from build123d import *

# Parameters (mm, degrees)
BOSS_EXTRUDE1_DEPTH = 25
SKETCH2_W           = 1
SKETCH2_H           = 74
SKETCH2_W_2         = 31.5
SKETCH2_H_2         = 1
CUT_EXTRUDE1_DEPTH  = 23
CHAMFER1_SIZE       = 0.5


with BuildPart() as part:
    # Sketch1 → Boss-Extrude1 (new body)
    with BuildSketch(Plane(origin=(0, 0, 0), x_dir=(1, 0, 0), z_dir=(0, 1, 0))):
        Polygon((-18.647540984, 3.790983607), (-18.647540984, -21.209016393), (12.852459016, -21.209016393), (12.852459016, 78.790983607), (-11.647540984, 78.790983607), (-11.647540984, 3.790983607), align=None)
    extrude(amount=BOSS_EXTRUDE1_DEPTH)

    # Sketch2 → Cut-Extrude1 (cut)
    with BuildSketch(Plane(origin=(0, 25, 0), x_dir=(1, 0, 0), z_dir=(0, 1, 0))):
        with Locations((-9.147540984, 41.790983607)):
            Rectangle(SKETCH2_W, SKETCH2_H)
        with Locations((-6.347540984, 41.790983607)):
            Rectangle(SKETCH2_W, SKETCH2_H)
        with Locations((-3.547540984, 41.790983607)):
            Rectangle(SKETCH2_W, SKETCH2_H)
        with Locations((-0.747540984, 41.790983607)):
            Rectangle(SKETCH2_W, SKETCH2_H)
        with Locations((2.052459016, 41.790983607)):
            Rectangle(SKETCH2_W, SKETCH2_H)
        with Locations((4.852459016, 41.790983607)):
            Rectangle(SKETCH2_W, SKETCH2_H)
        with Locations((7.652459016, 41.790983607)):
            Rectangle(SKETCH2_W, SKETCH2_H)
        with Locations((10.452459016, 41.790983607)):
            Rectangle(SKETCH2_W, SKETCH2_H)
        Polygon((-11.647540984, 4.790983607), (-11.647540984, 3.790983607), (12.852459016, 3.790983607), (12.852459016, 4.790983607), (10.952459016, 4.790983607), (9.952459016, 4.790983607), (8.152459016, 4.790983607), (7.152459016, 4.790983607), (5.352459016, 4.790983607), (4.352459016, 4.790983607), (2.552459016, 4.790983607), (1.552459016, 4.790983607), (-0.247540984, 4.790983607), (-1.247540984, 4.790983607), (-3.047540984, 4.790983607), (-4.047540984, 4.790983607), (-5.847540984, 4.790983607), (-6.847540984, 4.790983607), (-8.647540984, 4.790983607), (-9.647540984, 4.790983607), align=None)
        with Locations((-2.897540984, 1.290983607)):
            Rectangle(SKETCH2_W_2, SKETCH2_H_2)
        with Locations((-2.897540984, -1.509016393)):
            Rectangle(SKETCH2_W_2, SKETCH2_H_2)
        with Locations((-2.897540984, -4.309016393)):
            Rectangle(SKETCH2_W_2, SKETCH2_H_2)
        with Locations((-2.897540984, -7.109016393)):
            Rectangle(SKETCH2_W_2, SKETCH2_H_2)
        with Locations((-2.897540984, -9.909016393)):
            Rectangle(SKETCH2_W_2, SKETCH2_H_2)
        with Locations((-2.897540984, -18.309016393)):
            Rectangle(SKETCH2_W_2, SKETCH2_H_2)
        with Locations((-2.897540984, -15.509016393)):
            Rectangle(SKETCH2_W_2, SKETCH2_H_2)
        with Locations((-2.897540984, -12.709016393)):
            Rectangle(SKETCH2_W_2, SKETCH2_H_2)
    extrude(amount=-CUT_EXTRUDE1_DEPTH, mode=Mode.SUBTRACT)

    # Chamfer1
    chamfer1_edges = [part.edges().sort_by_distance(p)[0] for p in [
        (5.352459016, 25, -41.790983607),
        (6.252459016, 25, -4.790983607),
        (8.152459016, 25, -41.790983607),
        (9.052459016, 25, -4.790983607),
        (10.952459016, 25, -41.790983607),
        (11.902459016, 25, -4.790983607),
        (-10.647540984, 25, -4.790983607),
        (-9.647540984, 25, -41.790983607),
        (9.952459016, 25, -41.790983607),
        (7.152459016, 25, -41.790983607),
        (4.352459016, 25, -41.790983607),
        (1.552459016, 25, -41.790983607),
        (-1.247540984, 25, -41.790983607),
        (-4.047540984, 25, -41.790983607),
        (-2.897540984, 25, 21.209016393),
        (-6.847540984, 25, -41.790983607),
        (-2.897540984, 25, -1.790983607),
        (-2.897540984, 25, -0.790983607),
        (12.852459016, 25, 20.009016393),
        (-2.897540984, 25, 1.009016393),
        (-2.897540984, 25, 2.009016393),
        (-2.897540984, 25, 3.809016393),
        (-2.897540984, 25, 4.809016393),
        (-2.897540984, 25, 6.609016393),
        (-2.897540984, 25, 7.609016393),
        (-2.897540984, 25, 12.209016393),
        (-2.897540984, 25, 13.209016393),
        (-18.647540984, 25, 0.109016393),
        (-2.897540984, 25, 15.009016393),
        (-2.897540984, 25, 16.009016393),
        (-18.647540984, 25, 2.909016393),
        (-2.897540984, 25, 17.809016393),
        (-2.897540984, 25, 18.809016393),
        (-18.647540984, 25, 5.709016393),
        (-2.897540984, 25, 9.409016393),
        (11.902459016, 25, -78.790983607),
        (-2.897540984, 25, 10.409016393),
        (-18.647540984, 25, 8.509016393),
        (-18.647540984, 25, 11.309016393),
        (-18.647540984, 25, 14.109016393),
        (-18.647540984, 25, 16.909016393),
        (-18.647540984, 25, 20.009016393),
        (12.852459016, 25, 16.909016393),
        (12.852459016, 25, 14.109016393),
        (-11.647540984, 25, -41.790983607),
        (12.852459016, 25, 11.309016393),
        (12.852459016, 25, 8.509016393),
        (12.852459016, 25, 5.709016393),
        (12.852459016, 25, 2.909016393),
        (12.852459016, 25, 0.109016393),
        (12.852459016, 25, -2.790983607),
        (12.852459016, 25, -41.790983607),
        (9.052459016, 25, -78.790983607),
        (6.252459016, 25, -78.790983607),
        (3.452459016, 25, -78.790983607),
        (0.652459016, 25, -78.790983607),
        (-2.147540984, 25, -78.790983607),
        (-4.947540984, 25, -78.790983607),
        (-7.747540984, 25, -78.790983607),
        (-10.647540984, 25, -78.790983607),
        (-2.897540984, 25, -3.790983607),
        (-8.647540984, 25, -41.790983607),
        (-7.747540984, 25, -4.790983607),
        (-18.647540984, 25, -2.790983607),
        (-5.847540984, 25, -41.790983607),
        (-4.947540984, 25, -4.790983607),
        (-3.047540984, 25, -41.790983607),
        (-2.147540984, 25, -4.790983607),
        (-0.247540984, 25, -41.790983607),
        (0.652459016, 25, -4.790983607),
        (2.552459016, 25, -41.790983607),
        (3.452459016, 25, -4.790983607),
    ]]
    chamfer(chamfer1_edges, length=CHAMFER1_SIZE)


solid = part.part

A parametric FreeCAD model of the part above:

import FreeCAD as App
import Part
import Sketcher


def edges_at(feature, points):
    """Names of the edges that pass closest to the given points."""
    edges = feature.Shape.Edges
    near = lambda p: min(range(len(edges)), key=lambda i: edges[i].distToShape(Part.Vertex(*p))[0])
    return sorted({f"Edge{near(p) + 1}" for p in points})

doc = App.newDocument("Part")
body = doc.addObject("PartDesign::Body", "Body")

# Sketch on XZ plane
sketch1 = body.newObject("Sketcher::SketchObject", "Sketch")
sketch1.AttachmentSupport = (doc.getObject("XZ_Plane"), [""])
sketch1.MapMode = "FlatFace"
sketch1.addGeometry(Part.LineSegment(App.Vector(-18.647541, -3.790984, 0), App.Vector(-18.647541, 21.209016, 0)), False)
sketch1.addGeometry(Part.LineSegment(App.Vector(-18.647541, 21.209016, 0), App.Vector(12.852459, 21.209016, 0)), False)
sketch1.addGeometry(Part.LineSegment(App.Vector(12.852459, 21.209016, 0), App.Vector(12.852459, -78.790984, 0)), False)
sketch1.addGeometry(Part.LineSegment(App.Vector(12.852459, -78.790984, 0), App.Vector(-11.647541, -78.790984, 0)), False)
sketch1.addGeometry(Part.LineSegment(App.Vector(-11.647541, -78.790984, 0), App.Vector(-11.647541, -3.790984, 0)), False)
sketch1.addGeometry(Part.LineSegment(App.Vector(-11.647541, -3.790984, 0), App.Vector(-18.647541, -3.790984, 0)), False)
sketch1.addConstraint(Sketcher.Constraint("Coincident", 0, 2, 1, 1))
sketch1.addConstraint(Sketcher.Constraint("Coincident", 1, 2, 2, 1))
sketch1.addConstraint(Sketcher.Constraint("Coincident", 2, 2, 3, 1))
sketch1.addConstraint(Sketcher.Constraint("Coincident", 3, 2, 4, 1))
sketch1.addConstraint(Sketcher.Constraint("Coincident", 4, 2, 5, 1))
sketch1.addConstraint(Sketcher.Constraint("Coincident", 5, 2, 0, 1))
sketch1.addConstraint(Sketcher.Constraint("Vertical", 0))
sketch1.addConstraint(Sketcher.Constraint("Horizontal", 1))
sketch1.addConstraint(Sketcher.Constraint("Vertical", 2))
sketch1.addConstraint(Sketcher.Constraint("Horizontal", 3))
sketch1.addConstraint(Sketcher.Constraint("Vertical", 4))
sketch1.addConstraint(Sketcher.Constraint("Horizontal", 5))
sketch1.addConstraint(Sketcher.Constraint("DistanceX", 5, 2, 5, 1, 7.0))
sketch1.addConstraint(Sketcher.Constraint("DistanceY", 0, 1, 0, 2, 25.0))
sketch1.addConstraint(Sketcher.Constraint("DistanceY", 2, 2, 2, 1, 100.0))
sketch1.addConstraint(Sketcher.Constraint("DistanceX", 1, 1, 1, 2, 31.5))
sketch1.addConstraint(Sketcher.Constraint("DistanceX", 0, 2, -1, 1, 18.647541))
sketch1.addConstraint(Sketcher.Constraint("DistanceY", -1, 1, 0, 2, 21.209016))
pad1 = body.newObject("PartDesign::Pad", "Pad")
pad1.Profile = sketch1
pad1.Length = 25
pad1.Reversed = True

# Sketch on XZ plane
sketch2 = body.newObject("Sketcher::SketchObject", "Sketch001")
sketch2.AttachmentSupport = (doc.getObject("XZ_Plane"), [""])
sketch2.MapMode = "FlatFace"
sketch2.AttachmentOffset = App.Placement(App.Vector(0, 0, -25), App.Rotation())
sketch2.addGeometry(Part.LineSegment(App.Vector(-9.647541, -78.790984, 0), App.Vector(-9.647541, -4.790984, 0)), False)
sketch2.addGeometry(Part.LineSegment(App.Vector(-9.647541, -4.790984, 0), App.Vector(-11.647541, -4.790984, 0)), False)
sketch2.addGeometry(Part.LineSegment(App.Vector(-11.647541, -4.790984, 0), App.Vector(-11.647541, -3.790984, 0)), False)
sketch2.addGeometry(Part.LineSegment(App.Vector(-11.647541, -3.790984, 0), App.Vector(12.852459, -3.790984, 0)), False)
sketch2.addGeometry(Part.LineSegment(App.Vector(12.852459, -3.790984, 0), App.Vector(12.852459, -4.790984, 0)), False)
sketch2.addGeometry(Part.LineSegment(App.Vector(12.852459, -4.790984, 0), App.Vector(10.952459, -4.790984, 0)), False)
sketch2.addGeometry(Part.LineSegment(App.Vector(10.952459, -4.790984, 0), App.Vector(10.952459, -78.790984, 0)), False)
sketch2.addGeometry(Part.LineSegment(App.Vector(10.952459, -78.790984, 0), App.Vector(9.952459, -78.790984, 0)), False)
sketch2.addGeometry(Part.LineSegment(App.Vector(9.952459, -78.790984, 0), App.Vector(9.952459, -4.790984, 0)), False)
sketch2.addGeometry(Part.LineSegment(App.Vector(9.952459, -4.790984, 0), App.Vector(8.152459, -4.790984, 0)), False)
sketch2.addGeometry(Part.LineSegment(App.Vector(8.152459, -4.790984, 0), App.Vector(8.152459, -78.790984, 0)), False)
sketch2.addGeometry(Part.LineSegment(App.Vector(8.152459, -78.790984, 0), App.Vector(7.152459, -78.790984, 0)), False)
sketch2.addGeometry(Part.LineSegment(App.Vector(7.152459, -78.790984, 0), App.Vector(7.152459, -4.790984, 0)), False)
sketch2.addGeometry(Part.LineSegment(App.Vector(7.152459, -4.790984, 0), App.Vector(5.352459, -4.790984, 0)), False)
sketch2.addGeometry(Part.LineSegment(App.Vector(5.352459, -4.790984, 0), App.Vector(5.352459, -78.790984, 0)), False)
sketch2.addGeometry(Part.LineSegment(App.Vector(5.352459, -78.790984, 0), App.Vector(4.352459, -78.790984, 0)), False)
sketch2.addGeometry(Part.LineSegment(App.Vector(4.352459, -78.790984, 0), App.Vector(4.352459, -4.790984, 0)), False)
sketch2.addGeometry(Part.LineSegment(App.Vector(4.352459, -4.790984, 0), App.Vector(2.552459, -4.790984, 0)), False)
sketch2.addGeometry(Part.LineSegment(App.Vector(2.552459, -4.790984, 0), App.Vector(2.552459, -78.790984, 0)), False)
sketch2.addGeometry(Part.LineSegment(App.Vector(2.552459, -78.790984, 0), App.Vector(1.552459, -78.790984, 0)), False)
sketch2.addGeometry(Part.LineSegment(App.Vector(1.552459, -78.790984, 0), App.Vector(1.552459, -4.790984, 0)), False)
sketch2.addGeometry(Part.LineSegment(App.Vector(1.552459, -4.790984, 0), App.Vector(-0.247541, -4.790984, 0)), False)
sketch2.addGeometry(Part.LineSegment(App.Vector(-0.247541, -4.790984, 0), App.Vector(-0.247541, -78.790984, 0)), False)
sketch2.addGeometry(Part.LineSegment(App.Vector(-0.247541, -78.790984, 0), App.Vector(-1.247541, -78.790984, 0)), False)
sketch2.addGeometry(Part.LineSegment(App.Vector(-1.247541, -78.790984, 0), App.Vector(-1.247541, -4.790984, 0)), False)
sketch2.addGeometry(Part.LineSegment(App.Vector(-1.247541, -4.790984, 0), App.Vector(-3.047541, -4.790984, 0)), False)
sketch2.addGeometry(Part.LineSegment(App.Vector(-3.047541, -4.790984, 0), App.Vector(-3.047541, -78.790984, 0)), False)
sketch2.addGeometry(Part.LineSegment(App.Vector(-3.047541, -78.790984, 0), App.Vector(-4.047541, -78.790984, 0)), False)
sketch2.addGeometry(Part.LineSegment(App.Vector(-4.047541, -78.790984, 0), App.Vector(-4.047541, -4.790984, 0)), False)
sketch2.addGeometry(Part.LineSegment(App.Vector(-4.047541, -4.790984, 0), App.Vector(-5.847541, -4.790984, 0)), False)
sketch2.addGeometry(Part.LineSegment(App.Vector(-5.847541, -4.790984, 0), App.Vector(-5.847541, -78.790984, 0)), False)
sketch2.addGeometry(Part.LineSegment(App.Vector(-5.847541, -78.790984, 0), App.Vector(-6.847541, -78.790984, 0)), False)
sketch2.addGeometry(Part.LineSegment(App.Vector(-6.847541, -78.790984, 0), App.Vector(-6.847541, -4.790984, 0)), False)
sketch2.addGeometry(Part.LineSegment(App.Vector(-6.847541, -4.790984, 0), App.Vector(-8.647541, -4.790984, 0)), False)
sketch2.addGeometry(Part.LineSegment(App.Vector(-8.647541, -4.790984, 0), App.Vector(-8.647541, -78.790984, 0)), False)
sketch2.addGeometry(Part.LineSegment(App.Vector(-8.647541, -78.790984, 0), App.Vector(-9.647541, -78.790984, 0)), False)
sketch2.addGeometry(Part.LineSegment(App.Vector(-18.647541, -1.790984, 0), App.Vector(-18.647541, -0.790984, 0)), False)
sketch2.addGeometry(Part.LineSegment(App.Vector(-18.647541, -0.790984, 0), App.Vector(12.852459, -0.790984, 0)), False)
sketch2.addGeometry(Part.LineSegment(App.Vector(12.852459, -0.790984, 0), App.Vector(12.852459, -1.790984, 0)), False)
sketch2.addGeometry(Part.LineSegment(App.Vector(12.852459, -1.790984, 0), App.Vector(-18.647541, -1.790984, 0)), False)
sketch2.addGeometry(Part.LineSegment(App.Vector(-18.647541, 1.009016, 0), App.Vector(-18.647541, 2.009016, 0)), False)
sketch2.addGeometry(Part.LineSegment(App.Vector(-18.647541, 2.009016, 0), App.Vector(12.852459, 2.009016, 0)), False)
sketch2.addGeometry(Part.LineSegment(App.Vector(12.852459, 2.009016, 0), App.Vector(12.852459, 1.009016, 0)), False)
sketch2.addGeometry(Part.LineSegment(App.Vector(12.852459, 1.009016, 0), App.Vector(-18.647541, 1.009016, 0)), False)
sketch2.addGeometry(Part.LineSegment(App.Vector(-18.647541, 3.809016, 0), App.Vector(-18.647541, 4.809016, 0)), False)
sketch2.addGeometry(Part.LineSegment(App.Vector(-18.647541, 4.809016, 0), App.Vector(12.852459, 4.809016, 0)), False)
sketch2.addGeometry(Part.LineSegment(App.Vector(12.852459, 4.809016, 0), App.Vector(12.852459, 3.809016, 0)), False)
sketch2.addGeometry(Part.LineSegment(App.Vector(12.852459, 3.809016, 0), App.Vector(-18.647541, 3.809016, 0)), False)
sketch2.addGeometry(Part.LineSegment(App.Vector(-18.647541, 6.609016, 0), App.Vector(-18.647541, 7.609016, 0)), False)
sketch2.addGeometry(Part.LineSegment(App.Vector(-18.647541, 7.609016, 0), App.Vector(12.852459, 7.609016, 0)), False)
sketch2.addGeometry(Part.LineSegment(App.Vector(12.852459, 7.609016, 0), App.Vector(12.852459, 6.609016, 0)), False)
sketch2.addGeometry(Part.LineSegment(App.Vector(12.852459, 6.609016, 0), App.Vector(-18.647541, 6.609016, 0)), False)
sketch2.addGeometry(Part.LineSegment(App.Vector(-18.647541, 9.409016, 0), App.Vector(-18.647541, 10.409016, 0)), False)
sketch2.addGeometry(Part.LineSegment(App.Vector(-18.647541, 10.409016, 0), App.Vector(12.852459, 10.409016, 0)), False)
sketch2.addGeometry(Part.LineSegment(App.Vector(12.852459, 10.409016, 0), App.Vector(12.852459, 9.409016, 0)), False)
sketch2.addGeometry(Part.LineSegment(App.Vector(12.852459, 9.409016, 0), App.Vector(-18.647541, 9.409016, 0)), False)
sketch2.addGeometry(Part.LineSegment(App.Vector(-18.647541, 17.809016, 0), App.Vector(-18.647541, 18.809016, 0)), False)
sketch2.addGeometry(Part.LineSegment(App.Vector(-18.647541, 18.809016, 0), App.Vector(12.852459, 18.809016, 0)), False)
sketch2.addGeometry(Part.LineSegment(App.Vector(12.852459, 18.809016, 0), App.Vector(12.852459, 17.809016, 0)), False)
sketch2.addGeometry(Part.LineSegment(App.Vector(12.852459, 17.809016, 0), App.Vector(-18.647541, 17.809016, 0)), False)
sketch2.addGeometry(Part.LineSegment(App.Vector(-18.647541, 15.009016, 0), App.Vector(-18.647541, 16.009016, 0)), False)
sketch2.addGeometry(Part.LineSegment(App.Vector(-18.647541, 16.009016, 0), App.Vector(12.852459, 16.009016, 0)), False)
sketch2.addGeometry(Part.LineSegment(App.Vector(12.852459, 16.009016, 0), App.Vector(12.852459, 15.009016, 0)), False)
sketch2.addGeometry(Part.LineSegment(App.Vector(12.852459, 15.009016, 0), App.Vector(-18.647541, 15.009016, 0)), False)
sketch2.addGeometry(Part.LineSegment(App.Vector(-18.647541, 12.209016, 0), App.Vector(-18.647541, 13.209016, 0)), False)
sketch2.addGeometry(Part.LineSegment(App.Vector(-18.647541, 13.209016, 0), App.Vector(12.852459, 13.209016, 0)), False)
sketch2.addGeometry(Part.LineSegment(App.Vector(12.852459, 13.209016, 0), App.Vector(12.852459, 12.209016, 0)), False)
sketch2.addGeometry(Part.LineSegment(App.Vector(12.852459, 12.209016, 0), App.Vector(-18.647541, 12.209016, 0)), False)
sketch2.addConstraint(Sketcher.Constraint("Coincident", 0, 2, 1, 1))
sketch2.addConstraint(Sketcher.Constraint("Coincident", 1, 2, 2, 1))
sketch2.addConstraint(Sketcher.Constraint("Coincident", 2, 2, 3, 1))
sketch2.addConstraint(Sketcher.Constraint("Coincident", 3, 2, 4, 1))
sketch2.addConstraint(Sketcher.Constraint("Coincident", 4, 2, 5, 1))
sketch2.addConstraint(Sketcher.Constraint("Coincident", 5, 2, 6, 1))
sketch2.addConstraint(Sketcher.Constraint("Coincident", 6, 2, 7, 1))
sketch2.addConstraint(Sketcher.Constraint("Coincident", 7, 2, 8, 1))
sketch2.addConstraint(Sketcher.Constraint("Coincident", 8, 2, 9, 1))
sketch2.addConstraint(Sketcher.Constraint("Coincident", 9, 2, 10, 1))
sketch2.addConstraint(Sketcher.Constraint("Coincident", 10, 2, 11, 1))
sketch2.addConstraint(Sketcher.Constraint("Coincident", 11, 2, 12, 1))
sketch2.addConstraint(Sketcher.Constraint("Coincident", 12, 2, 13, 1))
sketch2.addConstraint(Sketcher.Constraint("Coincident", 13, 2, 14, 1))
sketch2.addConstraint(Sketcher.Constraint("Coincident", 14, 2, 15, 1))
sketch2.addConstraint(Sketcher.Constraint("Coincident", 15, 2, 16, 1))
sketch2.addConstraint(Sketcher.Constraint("Coincident", 16, 2, 17, 1))
sketch2.addConstraint(Sketcher.Constraint("Coincident", 17, 2, 18, 1))
sketch2.addConstraint(Sketcher.Constraint("Coincident", 18, 2, 19, 1))
sketch2.addConstraint(Sketcher.Constraint("Coincident", 19, 2, 20, 1))
sketch2.addConstraint(Sketcher.Constraint("Coincident", 20, 2, 21, 1))
sketch2.addConstraint(Sketcher.Constraint("Coincident", 21, 2, 22, 1))
sketch2.addConstraint(Sketcher.Constraint("Coincident", 22, 2, 23, 1))
sketch2.addConstraint(Sketcher.Constraint("Coincident", 23, 2, 24, 1))
sketch2.addConstraint(Sketcher.Constraint("Coincident", 24, 2, 25, 1))
sketch2.addConstraint(Sketcher.Constraint("Coincident", 25, 2, 26, 1))
sketch2.addConstraint(Sketcher.Constraint("Coincident", 26, 2, 27, 1))
sketch2.addConstraint(Sketcher.Constraint("Coincident", 27, 2, 28, 1))
sketch2.addConstraint(Sketcher.Constraint("Coincident", 28, 2, 29, 1))
sketch2.addConstraint(Sketcher.Constraint("Coincident", 29, 2, 30, 1))
sketch2.addConstraint(Sketcher.Constraint("Coincident", 30, 2, 31, 1))
sketch2.addConstraint(Sketcher.Constraint("Coincident", 31, 2, 32, 1))
sketch2.addConstraint(Sketcher.Constraint("Coincident", 32, 2, 33, 1))
sketch2.addConstraint(Sketcher.Constraint("Coincident", 33, 2, 34, 1))
sketch2.addConstraint(Sketcher.Constraint("Coincident", 34, 2, 35, 1))
sketch2.addConstraint(Sketcher.Constraint("Coincident", 35, 2, 0, 1))
sketch2.addConstraint(Sketcher.Constraint("Coincident", 36, 2, 37, 1))
sketch2.addConstraint(Sketcher.Constraint("Coincident", 37, 2, 38, 1))
sketch2.addConstraint(Sketcher.Constraint("Coincident", 38, 2, 39, 1))
sketch2.addConstraint(Sketcher.Constraint("Coincident", 39, 2, 36, 1))
sketch2.addConstraint(Sketcher.Constraint("Coincident", 40, 2, 41, 1))
sketch2.addConstraint(Sketcher.Constraint("Coincident", 41, 2, 42, 1))
sketch2.addConstraint(Sketcher.Constraint("Coincident", 42, 2, 43, 1))
sketch2.addConstraint(Sketcher.Constraint("Coincident", 43, 2, 40, 1))
sketch2.addConstraint(Sketcher.Constraint("Coincident", 44, 2, 45, 1))
sketch2.addConstraint(Sketcher.Constraint("Coincident", 45, 2, 46, 1))
sketch2.addConstraint(Sketcher.Constraint("Coincident", 46, 2, 47, 1))
sketch2.addConstraint(Sketcher.Constraint("Coincident", 47, 2, 44, 1))
sketch2.addConstraint(Sketcher.Constraint("Coincident", 48, 2, 49, 1))
sketch2.addConstraint(Sketcher.Constraint("Coincident", 49, 2, 50, 1))
sketch2.addConstraint(Sketcher.Constraint("Coincident", 50, 2, 51, 1))
sketch2.addConstraint(Sketcher.Constraint("Coincident", 51, 2, 48, 1))
sketch2.addConstraint(Sketcher.Constraint("Coincident", 52, 2, 53, 1))
sketch2.addConstraint(Sketcher.Constraint("Coincident", 53, 2, 54, 1))
sketch2.addConstraint(Sketcher.Constraint("Coincident", 54, 2, 55, 1))
sketch2.addConstraint(Sketcher.Constraint("Coincident", 55, 2, 52, 1))
sketch2.addConstraint(Sketcher.Constraint("Coincident", 56, 2, 57, 1))
sketch2.addConstraint(Sketcher.Constraint("Coincident", 57, 2, 58, 1))
sketch2.addConstraint(Sketcher.Constraint("Coincident", 58, 2, 59, 1))
sketch2.addConstraint(Sketcher.Constraint("Coincident", 59, 2, 56, 1))
sketch2.addConstraint(Sketcher.Constraint("Coincident", 60, 2, 61, 1))
sketch2.addConstraint(Sketcher.Constraint("Coincident", 61, 2, 62, 1))
sketch2.addConstraint(Sketcher.Constraint("Coincident", 62, 2, 63, 1))
sketch2.addConstraint(Sketcher.Constraint("Coincident", 63, 2, 60, 1))
sketch2.addConstraint(Sketcher.Constraint("Coincident", 64, 2, 65, 1))
sketch2.addConstraint(Sketcher.Constraint("Coincident", 65, 2, 66, 1))
sketch2.addConstraint(Sketcher.Constraint("Coincident", 66, 2, 67, 1))
sketch2.addConstraint(Sketcher.Constraint("Coincident", 67, 2, 64, 1))
sketch2.addConstraint(Sketcher.Constraint("Vertical", 0))
sketch2.addConstraint(Sketcher.Constraint("Horizontal", 1))
sketch2.addConstraint(Sketcher.Constraint("Vertical", 2))
sketch2.addConstraint(Sketcher.Constraint("Horizontal", 3))
sketch2.addConstraint(Sketcher.Constraint("Vertical", 4))
sketch2.addConstraint(Sketcher.Constraint("Horizontal", 5))
sketch2.addConstraint(Sketcher.Constraint("Vertical", 6))
sketch2.addConstraint(Sketcher.Constraint("Horizontal", 7))
sketch2.addConstraint(Sketcher.Constraint("Vertical", 8))
sketch2.addConstraint(Sketcher.Constraint("Horizontal", 9))
sketch2.addConstraint(Sketcher.Constraint("Vertical", 10))
sketch2.addConstraint(Sketcher.Constraint("Horizontal", 11))
sketch2.addConstraint(Sketcher.Constraint("Vertical", 12))
sketch2.addConstraint(Sketcher.Constraint("Horizontal", 13))
sketch2.addConstraint(Sketcher.Constraint("Vertical", 14))
sketch2.addConstraint(Sketcher.Constraint("Horizontal", 15))
sketch2.addConstraint(Sketcher.Constraint("Vertical", 16))
sketch2.addConstraint(Sketcher.Constraint("Horizontal", 17))
sketch2.addConstraint(Sketcher.Constraint("Vertical", 18))
sketch2.addConstraint(Sketcher.Constraint("Horizontal", 19))
sketch2.addConstraint(Sketcher.Constraint("Vertical", 20))
sketch2.addConstraint(Sketcher.Constraint("Horizontal", 21))
sketch2.addConstraint(Sketcher.Constraint("Vertical", 22))
sketch2.addConstraint(Sketcher.Constraint("Horizontal", 23))
sketch2.addConstraint(Sketcher.Constraint("Vertical", 24))
sketch2.addConstraint(Sketcher.Constraint("Horizontal", 25))
sketch2.addConstraint(Sketcher.Constraint("Vertical", 26))
sketch2.addConstraint(Sketcher.Constraint("Horizontal", 27))
sketch2.addConstraint(Sketcher.Constraint("Vertical", 28))
sketch2.addConstraint(Sketcher.Constraint("Horizontal", 29))
sketch2.addConstraint(Sketcher.Constraint("Vertical", 30))
sketch2.addConstraint(Sketcher.Constraint("Horizontal", 31))
sketch2.addConstraint(Sketcher.Constraint("Vertical", 32))
sketch2.addConstraint(Sketcher.Constraint("Horizontal", 33))
sketch2.addConstraint(Sketcher.Constraint("Vertical", 34))
sketch2.addConstraint(Sketcher.Constraint("Horizontal", 35))
sketch2.addConstraint(Sketcher.Constraint("Vertical", 36))
sketch2.addConstraint(Sketcher.Constraint("Horizontal", 37))
sketch2.addConstraint(Sketcher.Constraint("Vertical", 38))
sketch2.addConstraint(Sketcher.Constraint("Horizontal", 39))
sketch2.addConstraint(Sketcher.Constraint("Vertical", 40))
sketch2.addConstraint(Sketcher.Constraint("Horizontal", 41))
sketch2.addConstraint(Sketcher.Constraint("Vertical", 42))
sketch2.addConstraint(Sketcher.Constraint("Horizontal", 43))
sketch2.addConstraint(Sketcher.Constraint("Vertical", 44))
sketch2.addConstraint(Sketcher.Constraint("Horizontal", 45))
sketch2.addConstraint(Sketcher.Constraint("Vertical", 46))
sketch2.addConstraint(Sketcher.Constraint("Horizontal", 47))
sketch2.addConstraint(Sketcher.Constraint("Vertical", 48))
sketch2.addConstraint(Sketcher.Constraint("Horizontal", 49))
sketch2.addConstraint(Sketcher.Constraint("Vertical", 50))
sketch2.addConstraint(Sketcher.Constraint("Horizontal", 51))
sketch2.addConstraint(Sketcher.Constraint("Vertical", 52))
sketch2.addConstraint(Sketcher.Constraint("Horizontal", 53))
sketch2.addConstraint(Sketcher.Constraint("Vertical", 54))
sketch2.addConstraint(Sketcher.Constraint("Horizontal", 55))
sketch2.addConstraint(Sketcher.Constraint("Vertical", 56))
sketch2.addConstraint(Sketcher.Constraint("Horizontal", 57))
sketch2.addConstraint(Sketcher.Constraint("Vertical", 58))
sketch2.addConstraint(Sketcher.Constraint("Horizontal", 59))
sketch2.addConstraint(Sketcher.Constraint("Vertical", 60))
sketch2.addConstraint(Sketcher.Constraint("Horizontal", 61))
sketch2.addConstraint(Sketcher.Constraint("Vertical", 62))
sketch2.addConstraint(Sketcher.Constraint("Horizontal", 63))
sketch2.addConstraint(Sketcher.Constraint("Vertical", 64))
sketch2.addConstraint(Sketcher.Constraint("Horizontal", 65))
sketch2.addConstraint(Sketcher.Constraint("Vertical", 66))
sketch2.addConstraint(Sketcher.Constraint("Horizontal", 67))
sketch2.addConstraint(Sketcher.Constraint("Horizontal", 1, 2, 4, 2))
sketch2.addConstraint(Sketcher.Constraint("Horizontal", 5, 2, 8, 2))
sketch2.addConstraint(Sketcher.Constraint("Horizontal", 7, 2, 10, 2))
sketch2.addConstraint(Sketcher.Constraint("Horizontal", 9, 2, 12, 2))
sketch2.addConstraint(Sketcher.Constraint("Horizontal", 11, 2, 14, 2))
sketch2.addConstraint(Sketcher.Constraint("Horizontal", 13, 2, 16, 2))
sketch2.addConstraint(Sketcher.Constraint("Horizontal", 15, 2, 18, 2))
sketch2.addConstraint(Sketcher.Constraint("Horizontal", 17, 2, 20, 2))
sketch2.addConstraint(Sketcher.Constraint("Horizontal", 19, 2, 22, 2))
sketch2.addConstraint(Sketcher.Constraint("Horizontal", 21, 2, 24, 2))
sketch2.addConstraint(Sketcher.Constraint("Horizontal", 23, 2, 26, 2))
sketch2.addConstraint(Sketcher.Constraint("Horizontal", 25, 2, 28, 2))
sketch2.addConstraint(Sketcher.Constraint("Horizontal", 27, 2, 30, 2))
sketch2.addConstraint(Sketcher.Constraint("Horizontal", 29, 2, 32, 2))
sketch2.addConstraint(Sketcher.Constraint("Horizontal", 31, 2, 34, 2))
sketch2.addConstraint(Sketcher.Constraint("Vertical", 4, 2, 37, 2))
sketch2.addConstraint(Sketcher.Constraint("Vertical", 39, 2, 40, 2))
sketch2.addConstraint(Sketcher.Constraint("Vertical", 38, 2, 41, 2))
sketch2.addConstraint(Sketcher.Constraint("Vertical", 43, 2, 44, 2))
sketch2.addConstraint(Sketcher.Constraint("Vertical", 42, 2, 45, 2))
sketch2.addConstraint(Sketcher.Constraint("Vertical", 47, 2, 48, 2))
sketch2.addConstraint(Sketcher.Constraint("Vertical", 46, 2, 49, 2))
sketch2.addConstraint(Sketcher.Constraint("Vertical", 51, 2, 52, 2))
sketch2.addConstraint(Sketcher.Constraint("Vertical", 50, 2, 53, 2))
sketch2.addConstraint(Sketcher.Constraint("Vertical", 55, 2, 56, 2))
sketch2.addConstraint(Sketcher.Constraint("Vertical", 54, 2, 57, 2))
sketch2.addConstraint(Sketcher.Constraint("Vertical", 59, 2, 60, 2))
sketch2.addConstraint(Sketcher.Constraint("Vertical", 58, 2, 61, 2))
sketch2.addConstraint(Sketcher.Constraint("Vertical", 63, 2, 64, 2))
sketch2.addConstraint(Sketcher.Constraint("Vertical", 62, 2, 65, 2))
sketch2.addConstraint(Sketcher.Constraint("Equal", 7, 11))
sketch2.addConstraint(Sketcher.Constraint("Equal", 9, 13))
sketch2.addConstraint(Sketcher.Constraint("Equal", 11, 15))
sketch2.addConstraint(Sketcher.Constraint("Equal", 13, 17))
sketch2.addConstraint(Sketcher.Constraint("Equal", 15, 19))
sketch2.addConstraint(Sketcher.Constraint("Equal", 17, 21))
sketch2.addConstraint(Sketcher.Constraint("Equal", 19, 23))
sketch2.addConstraint(Sketcher.Constraint("Equal", 21, 25))
sketch2.addConstraint(Sketcher.Constraint("Equal", 23, 27))
sketch2.addConstraint(Sketcher.Constraint("Equal", 25, 29))
sketch2.addConstraint(Sketcher.Constraint("Equal", 27, 31))
sketch2.addConstraint(Sketcher.Constraint("Equal", 29, 33))
sketch2.addConstraint(Sketcher.Constraint("Equal", 31, 35))
sketch2.addConstraint(Sketcher.Constraint("Equal", 35, 2))
sketch2.addConstraint(Sketcher.Constraint("Equal", 4, 36))
sketch2.addConstraint(Sketcher.Constraint("Equal", 38, 40))
sketch2.addConstraint(Sketcher.Constraint("Equal", 42, 44))
sketch2.addConstraint(Sketcher.Constraint("Equal", 46, 48))
sketch2.addConstraint(Sketcher.Constraint("Equal", 50, 52))
sketch2.addConstraint(Sketcher.Constraint("Equal", 54, 56))
sketch2.addConstraint(Sketcher.Constraint("Equal", 58, 60))
sketch2.addConstraint(Sketcher.Constraint("Equal", 62, 64))
sketch2.addConstraint(Sketcher.Constraint("DistanceX", 1, 2, 1, 1, 2.0))
sketch2.addConstraint(Sketcher.Constraint("DistanceX", 7, 2, 7, 1, 1.0))
sketch2.addConstraint(Sketcher.Constraint("DistanceY", 0, 1, 0, 2, 74.0))
sketch2.addConstraint(Sketcher.Constraint("DistanceX", 3, 1, 3, 2, 24.5))
sketch2.addConstraint(Sketcher.Constraint("DistanceX", 5, 2, 5, 1, 1.9))
sketch2.addConstraint(Sketcher.Constraint("DistanceX", 37, 1, 37, 2, 31.5))
sketch2.addConstraint(Sketcher.Constraint("DistanceX", 0, 2, -1, 1, 9.647541))
sketch2.addConstraint(Sketcher.Constraint("DistanceY", 0, 2, -1, 1, 4.790984))
sketch2.addConstraint(Sketcher.Constraint("DistanceY", 36, 2, -1, 1, 0.790984))
sketch2.addConstraint(Sketcher.Constraint("DistanceY", -1, 1, 40, 2, 2.009016))
sketch2.addConstraint(Sketcher.Constraint("DistanceY", -1, 1, 44, 2, 4.809016))
sketch2.addConstraint(Sketcher.Constraint("DistanceY", -1, 1, 48, 2, 7.609016))
sketch2.addConstraint(Sketcher.Constraint("DistanceY", -1, 1, 52, 2, 10.409016))
sketch2.addConstraint(Sketcher.Constraint("DistanceY", -1, 1, 56, 2, 18.809016))
sketch2.addConstraint(Sketcher.Constraint("DistanceY", -1, 1, 60, 2, 16.009016))
sketch2.addConstraint(Sketcher.Constraint("DistanceY", -1, 1, 64, 2, 13.209016))
pocket1 = body.newObject("PartDesign::Pocket", "Pocket")
pocket1.Profile = sketch2
pocket1.Length = 23
pocket1.Reversed = True
doc.recompute()

chamfer = body.newObject("PartDesign::Chamfer", "Chamfer")
chamfer.Base = (pocket1, edges_at(pocket1, [
    (5.352, 25, -41.791),
    (6.252, 25, -4.791),
    (8.152, 25, -41.791),
    (9.052, 25, -4.791),
    (10.952, 25, -41.791),
    (11.902, 25, -4.791),
    (-10.648, 25, -4.791),
    (-9.648, 25, -41.791),
    (9.952, 25, -41.791),
    (7.152, 25, -41.791),
    (4.352, 25, -41.791),
    (1.552, 25, -41.791),
    (-1.248, 25, -41.791),
    (-4.048, 25, -41.791),
    (-2.898, 25, 21.209),
    (-6.848, 25, -41.791),
    (-2.898, 25, -1.791),
    (-2.898, 25, -0.791),
    (12.852, 25, 20.009),
    (-2.898, 25, 1.009),
    (-2.898, 25, 2.009),
    (-2.898, 25, 3.809),
    (-2.898, 25, 4.809),
    (-2.898, 25, 6.609),
    (-2.898, 25, 7.609),
    (-2.898, 25, 12.209),
    (-2.898, 25, 13.209),
    (-18.648, 25, 0.109),
    (-2.898, 25, 15.009),
    (-2.898, 25, 16.009),
    (-18.648, 25, 2.909),
    (-2.898, 25, 17.809),
    (-2.898, 25, 18.809),
    (-18.648, 25, 5.709),
    (-2.898, 25, 9.409),
    (11.902, 25, -78.791),
    (-2.898, 25, 10.409),
    (-18.648, 25, 8.509),
    (-18.648, 25, 11.309),
    (-18.648, 25, 14.109),
    (-18.648, 25, 16.909),
    (-18.648, 25, 20.009),
    (12.852, 25, 16.909),
    (12.852, 25, 14.109),
    (-11.648, 25, -41.791),
    (12.852, 25, 11.309),
    (12.852, 25, 8.509),
    (12.852, 25, 5.709),
    (12.852, 25, 2.909),
    (12.852, 25, 0.109),
    (12.852, 25, -2.791),
    (12.852, 25, -41.791),
    (9.052, 25, -78.791),
    (6.252, 25, -78.791),
    (3.452, 25, -78.791),
    (0.652, 25, -78.791),
    (-2.148, 25, -78.791),
    (-4.948, 25, -78.791),
    (-7.748, 25, -78.791),
    (-10.648, 25, -78.791),
    (-2.898, 25, -3.791),
    (-8.648, 25, -41.791),
    (-7.748, 25, -4.791),
    (-18.648, 25, -2.791),
    (-5.848, 25, -41.791),
    (-4.948, 25, -4.791),
    (-3.048, 25, -41.791),
    (-2.148, 25, -4.791),
    (-0.248, 25, -41.791),
    (0.652, 25, -4.791),
    (2.552, 25, -41.791),
    (3.452, 25, -4.791),
]))
chamfer.Size = 0.5

doc.recompute()
